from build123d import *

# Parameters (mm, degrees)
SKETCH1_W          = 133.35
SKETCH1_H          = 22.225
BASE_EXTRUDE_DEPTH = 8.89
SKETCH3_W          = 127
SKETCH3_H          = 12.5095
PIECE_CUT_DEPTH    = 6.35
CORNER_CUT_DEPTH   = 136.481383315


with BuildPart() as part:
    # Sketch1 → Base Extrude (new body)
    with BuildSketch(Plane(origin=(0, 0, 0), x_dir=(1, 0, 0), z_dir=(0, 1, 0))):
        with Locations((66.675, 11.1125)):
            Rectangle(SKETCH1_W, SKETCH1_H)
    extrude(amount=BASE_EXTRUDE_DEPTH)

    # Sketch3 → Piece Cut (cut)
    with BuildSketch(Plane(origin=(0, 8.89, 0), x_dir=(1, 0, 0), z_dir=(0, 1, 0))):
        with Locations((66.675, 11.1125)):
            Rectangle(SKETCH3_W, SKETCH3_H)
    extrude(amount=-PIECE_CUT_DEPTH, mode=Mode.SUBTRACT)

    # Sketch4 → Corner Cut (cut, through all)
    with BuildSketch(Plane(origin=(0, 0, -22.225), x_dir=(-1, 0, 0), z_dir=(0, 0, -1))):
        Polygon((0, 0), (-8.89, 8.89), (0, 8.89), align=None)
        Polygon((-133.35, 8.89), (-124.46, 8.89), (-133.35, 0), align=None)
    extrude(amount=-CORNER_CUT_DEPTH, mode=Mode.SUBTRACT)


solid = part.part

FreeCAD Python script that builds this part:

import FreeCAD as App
import Part
import Sketcher
Q = App.Units.Quantity

doc = App.newDocument("Part")
body = doc.addObject("PartDesign::Body", "Body")

sketch1 = body.newObject("Sketcher::SketchObject", "Sketch")
sketch1.AttachmentSupport = (doc.getObject("XZ_Plane"), [""])
sketch1.MapMode = "FlatFace"
sketch1.addGeometry([
    Part.LineSegment(App.Vector(0, -22, 0), App.Vector(0, 0, 0)),
    Part.LineSegment(App.Vector(0, 0, 0), App.Vector(133, 0, 0)),
    Part.LineSegment(App.Vector(133, 0, 0), App.Vector(133, -22, 0)),
    Part.LineSegment(App.Vector(133, -22, 0), App.Vector(0, -22, 0)),
], False)
sketch1.addConstraint([
    Sketcher.Constraint("Coincident", 0, 2, 1, 1),
    Sketcher.Constraint("Coincident", 1, 2, 2, 1),
    Sketcher.Constraint("Coincident", 2, 2, 3, 1),
    Sketcher.Constraint("Coincident", 3, 2, 0, 1),
    Sketcher.Constraint("Vertical", 0),
    Sketcher.Constraint("Horizontal", 1),
    Sketcher.Constraint("Vertical", 2),
    Sketcher.Constraint("Horizontal", 3),
    Sketcher.Constraint("Coincident", 0, 2, -1, 1),
    Sketcher.Constraint("DistanceX", 1, 1, 1, 2, Q("5.25 in")),
    Sketcher.Constraint("DistanceY", 0, 1, 0, 2, Q("0.875 in")),
])
pad1 = body.newObject("PartDesign::Pad", "Pad")
pad1.Profile = sketch1
pad1.Length = Q("0.35 in")
pad1.Reversed = True

sketch2 = body.newObject("Sketcher::SketchObject", "Sketch001")
sketch2.AttachmentSupport = (doc.getObject("XZ_Plane"), [""])
sketch2.MapMode = "FlatFace"
sketch2.AttachmentOffset = App.Placement(App.Vector(0, 0, -0.35 * 25.4), App.Rotation())
sketch2.addGeometry([
    Part.LineSegment(App.Vector(3, -17, 0), App.Vector(3, -5, 0)),
    Part.LineSegment(App.Vector(3, -5, 0), App.Vector(130, -5, 0)),
    Part.LineSegment(App.Vector(130, -5, 0), App.Vector(130, -17, 0)),
    Part.LineSegment(App.Vector(130, -17, 0), App.Vector(3, -17, 0)),
], False)
sketch2.addConstraint([
    Sketcher.Constraint("Coincident", 0, 2, 1, 1),
    Sketcher.Constraint("Coincident", 1, 2, 2, 1),
    Sketcher.Constraint("Coincident", 2, 2, 3, 1),
    Sketcher.Constraint("Coincident", 3, 2, 0, 1),
    Sketcher.Constraint("Vertical", 0),
    Sketcher.Constraint("Horizontal", 1),
    Sketcher.Constraint("Vertical", 2),
    Sketcher.Constraint("Horizontal", 3),
    Sketcher.Constraint("DistanceX", 1, 1, 1, 2, Q("5 in")),
    Sketcher.Constraint("DistanceY", 0, 1, 0, 2, Q("0.4925 in")),
    Sketcher.Constraint("DistanceX", -1, 1, 0, 2, Q("0.125 in")),
    Sketcher.Constraint("DistanceY", 0, 2, -1, 1, Q("4.85775 mm")),
])
pocket1 = body.newObject("PartDesign::Pocket", "Pocket")
pocket1.Profile = sketch2
pocket1.Length = Q("0.25 in")
pocket1.Reversed = True

sketch3 = body.newObject("Sketcher::SketchObject", "Sketch002")
sketch3.AttachmentSupport = (doc.getObject("XY_Plane"), [""])
sketch3.MapMode = "FlatFace"
sketch3.AttachmentOffset = App.Placement(App.Vector(0, 0, -0.875 * 25.4), App.Rotation())
sketch3.addGeometry([
    Part.LineSegment(App.Vector(9, 9, 0), App.Vector(0, 0, 0)),
    Part.LineSegment(App.Vector(0, 0, 0), App.Vector(0, 9, 0)),
    Part.LineSegment(App.Vector(0, 9, 0), App.Vector(9, 9, 0)),
    Part.LineSegment(App.Vector(124, 9, 0), App.Vector(133, 9, 0)),
    Part.LineSegment(App.Vector(133, 9, 0), App.Vector(133, 0, 0)),
    Part.LineSegment(App.Vector(133, 0, 0), App.Vector(124, 9, 0)),
], False)
sketch3.addConstraint([
    Sketcher.Constraint("Coincident", 0, 2, 1, 1),
    Sketcher.Constraint("Coincident", 1, 2, 2, 1),
    Sketcher.Constraint("Coincident", 2, 2, 0, 1),
    Sketcher.Constraint("Coincident", 3, 2, 4, 1),
    Sketcher.Constraint("Coincident", 4, 2, 5, 1),
    Sketcher.Constraint("Coincident", 5, 2, 3, 1),
    Sketcher.Constraint("Vertical", 1),
    Sketcher.Constraint("Horizontal", 2),
    Sketcher.Constraint("Horizontal", 3),
    Sketcher.Constraint("Vertical", 4),
    Sketcher.Constraint("Coincident", 0, 2, -1, 1),
    Sketcher.Constraint("PointOnObject", 4, 2, -1),
    Sketcher.Constraint("Perpendicular", 0, 5),
    Sketcher.Constraint("Horizontal", 2, 2, 3, 2),
    Sketcher.Constraint("Equal", 2, 3),
    Sketcher.Constraint("DistanceX", 2, 1, 2, 2, Q("0.35 in")),
    Sketcher.Constraint("DistanceX", -1, 1, 5, 2, Q("4.9 in")),
])
pocket2 = body.newObject("PartDesign::Pocket", "Pocket001")
pocket2.Profile = sketch3
pocket2.Type = "ThroughAll"
pocket2.Reversed = True

doc.recompute()
